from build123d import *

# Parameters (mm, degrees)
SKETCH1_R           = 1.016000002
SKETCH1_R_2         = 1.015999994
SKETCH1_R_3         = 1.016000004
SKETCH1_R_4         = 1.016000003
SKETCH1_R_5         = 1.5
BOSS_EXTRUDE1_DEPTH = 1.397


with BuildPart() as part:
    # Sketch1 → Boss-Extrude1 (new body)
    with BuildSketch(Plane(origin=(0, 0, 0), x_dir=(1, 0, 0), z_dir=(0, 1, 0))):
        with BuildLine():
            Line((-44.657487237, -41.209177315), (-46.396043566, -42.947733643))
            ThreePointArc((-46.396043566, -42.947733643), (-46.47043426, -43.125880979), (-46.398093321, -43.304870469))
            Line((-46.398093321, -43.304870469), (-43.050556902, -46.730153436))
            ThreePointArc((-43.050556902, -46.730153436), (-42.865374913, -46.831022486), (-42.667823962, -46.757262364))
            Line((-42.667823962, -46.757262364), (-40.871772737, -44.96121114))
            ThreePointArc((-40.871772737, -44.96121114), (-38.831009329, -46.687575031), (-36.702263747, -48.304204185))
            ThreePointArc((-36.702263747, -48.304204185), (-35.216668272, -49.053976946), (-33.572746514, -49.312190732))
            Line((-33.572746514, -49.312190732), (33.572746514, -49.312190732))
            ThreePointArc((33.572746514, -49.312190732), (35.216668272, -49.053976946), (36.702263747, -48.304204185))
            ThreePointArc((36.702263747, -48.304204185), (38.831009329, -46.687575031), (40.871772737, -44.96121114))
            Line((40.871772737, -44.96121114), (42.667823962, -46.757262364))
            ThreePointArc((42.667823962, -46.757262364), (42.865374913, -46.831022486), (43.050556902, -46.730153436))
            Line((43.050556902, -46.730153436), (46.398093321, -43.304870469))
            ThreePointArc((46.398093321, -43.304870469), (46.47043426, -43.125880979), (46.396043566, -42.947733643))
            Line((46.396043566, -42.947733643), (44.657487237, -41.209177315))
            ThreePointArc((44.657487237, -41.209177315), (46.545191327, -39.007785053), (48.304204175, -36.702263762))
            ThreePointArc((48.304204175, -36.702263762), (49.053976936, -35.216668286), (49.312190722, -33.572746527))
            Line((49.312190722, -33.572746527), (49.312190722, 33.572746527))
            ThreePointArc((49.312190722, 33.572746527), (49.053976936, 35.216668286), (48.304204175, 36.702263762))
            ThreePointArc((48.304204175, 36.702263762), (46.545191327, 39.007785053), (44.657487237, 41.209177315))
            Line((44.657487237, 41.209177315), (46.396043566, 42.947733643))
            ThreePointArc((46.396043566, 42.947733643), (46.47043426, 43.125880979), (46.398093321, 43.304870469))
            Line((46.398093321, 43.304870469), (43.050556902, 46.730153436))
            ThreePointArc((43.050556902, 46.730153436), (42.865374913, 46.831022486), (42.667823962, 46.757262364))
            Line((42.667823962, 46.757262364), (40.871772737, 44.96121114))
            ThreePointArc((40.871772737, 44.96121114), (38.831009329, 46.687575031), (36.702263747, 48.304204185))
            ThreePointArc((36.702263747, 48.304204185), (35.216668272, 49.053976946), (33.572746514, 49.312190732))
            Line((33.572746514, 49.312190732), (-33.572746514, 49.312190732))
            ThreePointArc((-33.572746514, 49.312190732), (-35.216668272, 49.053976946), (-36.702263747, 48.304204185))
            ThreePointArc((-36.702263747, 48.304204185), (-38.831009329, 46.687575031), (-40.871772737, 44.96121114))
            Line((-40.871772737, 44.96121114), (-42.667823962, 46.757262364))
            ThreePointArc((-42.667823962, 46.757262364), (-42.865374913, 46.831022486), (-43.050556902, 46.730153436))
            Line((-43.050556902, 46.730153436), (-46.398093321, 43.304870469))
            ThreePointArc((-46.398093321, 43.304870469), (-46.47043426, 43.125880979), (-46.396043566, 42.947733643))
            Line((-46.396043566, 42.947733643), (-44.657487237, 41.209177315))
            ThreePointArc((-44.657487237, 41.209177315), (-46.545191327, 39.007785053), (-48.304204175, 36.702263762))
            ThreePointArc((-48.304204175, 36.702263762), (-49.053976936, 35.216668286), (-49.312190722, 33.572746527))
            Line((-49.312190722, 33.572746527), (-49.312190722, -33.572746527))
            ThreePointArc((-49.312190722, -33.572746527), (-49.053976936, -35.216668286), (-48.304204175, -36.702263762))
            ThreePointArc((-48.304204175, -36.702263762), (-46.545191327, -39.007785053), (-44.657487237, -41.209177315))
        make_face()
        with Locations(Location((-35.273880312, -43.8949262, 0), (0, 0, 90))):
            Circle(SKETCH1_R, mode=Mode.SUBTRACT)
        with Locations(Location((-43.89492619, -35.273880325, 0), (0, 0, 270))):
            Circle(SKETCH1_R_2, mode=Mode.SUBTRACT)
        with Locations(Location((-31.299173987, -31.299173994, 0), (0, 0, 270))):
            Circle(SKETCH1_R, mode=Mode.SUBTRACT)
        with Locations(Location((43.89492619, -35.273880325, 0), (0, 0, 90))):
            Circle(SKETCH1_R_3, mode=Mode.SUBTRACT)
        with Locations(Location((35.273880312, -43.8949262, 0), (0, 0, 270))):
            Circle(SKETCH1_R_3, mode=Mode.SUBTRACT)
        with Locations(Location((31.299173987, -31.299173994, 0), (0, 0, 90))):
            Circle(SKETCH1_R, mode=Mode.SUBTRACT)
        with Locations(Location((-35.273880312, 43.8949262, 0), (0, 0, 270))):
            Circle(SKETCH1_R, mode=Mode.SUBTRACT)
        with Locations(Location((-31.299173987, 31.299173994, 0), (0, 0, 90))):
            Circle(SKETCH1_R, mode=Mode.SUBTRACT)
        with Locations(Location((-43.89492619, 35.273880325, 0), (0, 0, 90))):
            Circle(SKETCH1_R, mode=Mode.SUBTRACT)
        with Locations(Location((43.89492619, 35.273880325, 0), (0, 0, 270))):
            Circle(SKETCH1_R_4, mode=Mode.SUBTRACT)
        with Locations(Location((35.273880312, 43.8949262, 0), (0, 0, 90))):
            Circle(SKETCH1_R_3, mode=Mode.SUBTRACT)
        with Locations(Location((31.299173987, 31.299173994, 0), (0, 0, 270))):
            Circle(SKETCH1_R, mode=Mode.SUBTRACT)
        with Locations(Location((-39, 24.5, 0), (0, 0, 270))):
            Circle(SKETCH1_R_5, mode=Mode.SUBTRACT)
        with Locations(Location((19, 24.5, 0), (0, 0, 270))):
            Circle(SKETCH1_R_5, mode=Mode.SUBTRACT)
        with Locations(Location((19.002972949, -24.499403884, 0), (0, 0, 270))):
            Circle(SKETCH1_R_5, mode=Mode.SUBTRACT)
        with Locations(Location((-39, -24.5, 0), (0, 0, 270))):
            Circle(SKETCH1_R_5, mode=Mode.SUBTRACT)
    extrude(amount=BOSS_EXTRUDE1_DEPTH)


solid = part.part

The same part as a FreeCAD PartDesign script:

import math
import FreeCAD as App
import Part
import Sketcher

V = App.Vector
Q = App.Units.Quantity

doc = App.newDocument("Part")
body = doc.addObject("PartDesign::Body", "Body")

# Sketch on XZ plane
sketch1 = doc.addObject("Sketcher::SketchObject", "Sketch")
body.addObject(sketch1)
sketch1.AttachmentSupport = (doc.XZ_Plane, [""])
sketch1.MapMode = "FlatFace"
sketch1.addGeometry(Part.LineSegment(V(-44.657487, 41.209177, 0), V(-46.396044, 42.947734, 0)), False)
sketch1.addGeometry(Part.ArcOfCircle(Part.Circle(V(-46.216438, 43.127339, 0), V(0, 0, 1), 0.254), math.radians(135.657681), math.radians(225)), False)
sketch1.addGeometry(Part.LineSegment(V(-46.398093, 43.30487, 0), V(-43.050557, 46.730153, 0)), False)
sketch1.addGeometry(Part.ArcOfCircle(Part.Circle(V(-42.847429, 46.577657, 0), V(0, 0, 1), 0.254), math.radians(45), math.radians(143.102974)), False)
sketch1.addGeometry(Part.LineSegment(V(-42.667824, 46.757262, 0), V(-40.871773, 44.961211, 0)), False)
sketch1.addGeometry(Part.ArcOfCircle(Part.Circle(V(-7.05371, 7.05371, 0), V(0, 0, 1), 50.8), math.radians(125.706473), math.radians(131.73681)), False)
sketch1.addGeometry(Part.ArcOfCircle(Part.Circle(V(-33.572747, 43.950058, 0), V(0, 0, 1), 5.362133), math.radians(90), math.radians(125.706473)), False)
sketch1.addGeometry(Part.LineSegment(V(-33.572747, 49.312191, 0), V(33.572747, 49.312191, 0)), False)
sketch1.addGeometry(Part.ArcOfCircle(Part.Circle(V(33.572747, 43.950058, 0), V(0, 0, 1), 5.362133), math.radians(54.293527), math.radians(90)), False)
sketch1.addGeometry(Part.ArcOfCircle(Part.Circle(V(7.05371, 7.05371, 0), V(0, 0, 1), 50.8), math.radians(48.26319), math.radians(54.293527)), False)
sketch1.addGeometry(Part.LineSegment(V(40.871773, 44.961211, 0), V(42.667824, 46.757262, 0)), False)
sketch1.addGeometry(Part.ArcOfCircle(Part.Circle(V(42.847429, 46.577657, 0), V(0, 0, 1), 0.254), math.radians(36.897026), math.radians(135)), False)
sketch1.addGeometry(Part.LineSegment(V(43.050557, 46.730153, 0), V(46.398093, 43.30487, 0)), False)
sketch1.addGeometry(Part.ArcOfCircle(Part.Circle(V(46.216438, 43.127339, 0), V(0, 0, 1), 0.254), math.radians(-45), math.radians(44.342319)), False)
sketch1.addGeometry(Part.LineSegment(V(46.396044, 42.947734, 0), V(44.657487, 41.209177, 0)), False)
sketch1.addGeometry(Part.ArcOfCircle(Part.Circle(V(7.05371, 7.05371, 0), V(0, 0, 1), 50.8), math.radians(35.706473), math.radians(42.248832)), False)
sketch1.addGeometry(Part.ArcOfCircle(Part.Circle(V(43.950058, 33.572747, 0), V(0, 0, 1), 5.362133), math.radians(0), math.radians(35.706473)), False)
sketch1.addGeometry(Part.LineSegment(V(49.312191, 33.572747, 0), V(49.312191, -33.572747, 0)), False)
sketch1.addGeometry(Part.ArcOfCircle(Part.Circle(V(43.950058, -33.572747, 0), V(0, 0, 1), 5.362133), math.radians(-35.706473), math.radians(0)), False)
sketch1.addGeometry(Part.ArcOfCircle(Part.Circle(V(7.05371, -7.05371, 0), V(0, 0, 1), 50.8), math.radians(-42.248832), math.radians(-35.706473)), False)
sketch1.addGeometry(Part.LineSegment(V(44.657487, -41.209177, 0), V(46.396044, -42.947734, 0)), False)
sketch1.addGeometry(Part.ArcOfCircle(Part.Circle(V(46.216438, -43.127339, 0), V(0, 0, 1), 0.254), math.radians(-44.342319), math.radians(45)), False)
sketch1.addGeometry(Part.LineSegment(V(46.398093, -43.30487, 0), V(43.050557, -46.730153, 0)), False)
sketch1.addGeometry(Part.ArcOfCircle(Part.Circle(V(42.847429, -46.577657, 0), V(0, 0, 1), 0.254), math.radians(-135), math.radians(-36.897026)), False)
sketch1.addGeometry(Part.LineSegment(V(42.667824, -46.757262, 0), V(40.871773, -44.961211, 0)), False)
sketch1.addGeometry(Part.ArcOfCircle(Part.Circle(V(7.05371, -7.05371, 0), V(0, 0, 1), 50.8), math.radians(-54.293527), math.radians(-48.26319)), False)
sketch1.addGeometry(Part.ArcOfCircle(Part.Circle(V(33.572747, -43.950058, 0), V(0, 0, 1), 5.362133), math.radians(-90), math.radians(-54.293527)), False)
sketch1.addGeometry(Part.LineSegment(V(33.572747, -49.312191, 0), V(-33.572747, -49.312191, 0)), False)
sketch1.addGeometry(Part.ArcOfCircle(Part.Circle(V(-33.572747, -43.950058, 0), V(0, 0, 1), 5.362133), math.radians(-125.706473), math.radians(-90)), False)
sketch1.addGeometry(Part.ArcOfCircle(Part.Circle(V(-7.05371, -7.05371, 0), V(0, 0, 1), 50.8), math.radians(-131.73681), math.radians(-125.706473)), False)
sketch1.addGeometry(Part.LineSegment(V(-40.871773, -44.961211, 0), V(-42.667824, -46.757262, 0)), False)
sketch1.addGeometry(Part.ArcOfCircle(Part.Circle(V(-42.847429, -46.577657, 0), V(0, 0, 1), 0.254), math.radians(-143.102974), math.radians(-45)), False)
sketch1.addGeometry(Part.LineSegment(V(-43.050557, -46.730153, 0), V(-46.398093, -43.30487, 0)), False)
sketch1.addGeometry(Part.ArcOfCircle(Part.Circle(V(-46.216438, -43.127339, 0), V(0, 0, 1), 0.254), math.radians(135), math.radians(224.342319)), False)
sketch1.addGeometry(Part.LineSegment(V(-46.396044, -42.947734, 0), V(-44.657487, -41.209177, 0)), False)
sketch1.addGeometry(Part.ArcOfCircle(Part.Circle(V(-7.05371, -7.05371, 0), V(0, 0, 1), 50.8), math.radians(-144.293527), math.radians(-137.751168)), False)
sketch1.addGeometry(Part.ArcOfCircle(Part.Circle(V(-43.950058, -33.572747, 0), V(0, 0, 1), 5.362133), math.radians(180), math.radians(215.706473)), False)
sketch1.addGeometry(Part.LineSegment(V(-49.312191, -33.572747, 0), V(-49.312191, 33.572747, 0)), False)
sketch1.addGeometry(Part.ArcOfCircle(Part.Circle(V(-43.950058, 33.572747, 0), V(0, 0, 1), 5.362133), math.radians(144.293527), math.radians(180)), False)
sketch1.addGeometry(Part.ArcOfCircle(Part.Circle(V(-7.05371, 7.05371, 0), V(0, 0, 1), 50.8), math.radians(137.751168), math.radians(144.293527)), False)
sketch1.addGeometry(Part.Circle(V(-35.27388, 43.894926, 0), V(0, 0, 1), 1.016), False)
sketch1.addGeometry(Part.Circle(V(-43.894926, 35.27388, 0), V(0, 0, 1), 1.016), False)
sketch1.addGeometry(Part.Circle(V(-39, 24.5, 0), V(0, 0, 1), 1.5), False)
sketch1.addGeometry(Part.Circle(V(-31.299174, 31.299174, 0), V(0, 0, 1), 1.016), False)
sketch1.addGeometry(Part.Circle(V(19.002973, 24.499404, 0), V(0, 0, 1), 1.5), False)
sketch1.addGeometry(Part.Circle(V(35.27388, 43.894926, 0), V(0, 0, 1), 1.016), False)
sketch1.addGeometry(Part.Circle(V(43.894926, 35.27388, 0), V(0, 0, 1), 1.016), False)
sketch1.addGeometry(Part.Circle(V(31.299174, 31.299174, 0), V(0, 0, 1), 1.016), False)
sketch1.addGeometry(Part.Circle(V(-39, -24.5, 0), V(0, 0, 1), 1.5), False)
sketch1.addGeometry(Part.Circle(V(-31.299174, -31.299174, 0), V(0, 0, 1), 1.016), False)
sketch1.addGeometry(Part.Circle(V(-43.894926, -35.27388, 0), V(0, 0, 1), 1.016), False)
sketch1.addGeometry(Part.Circle(V(-35.27388, -43.894926, 0), V(0, 0, 1), 1.016), False)
sketch1.addGeometry(Part.Circle(V(19, -24.5, 0), V(0, 0, 1), 1.5), False)
sketch1.addGeometry(Part.Circle(V(31.299174, -31.299174, 0), V(0, 0, 1), 1.016), False)
sketch1.addGeometry(Part.Circle(V(43.894926, -35.27388, 0), V(0, 0, 1), 1.016), False)
sketch1.addGeometry(Part.Circle(V(35.27388, -43.894926, 0), V(0, 0, 1), 1.016), False)
sketch1.addConstraint(Sketcher.Constraint("Tangent", 0, 2, 1, 2))
sketch1.addConstraint(Sketcher.Constraint("Tangent", 1, 1, 2, 1))
sketch1.addConstraint(Sketcher.Constraint("Coincident", 2, 2, 3, 2))
sketch1.addConstraint(Sketcher.Constraint("Tangent", 3, 1, 4, 1))
sketch1.addConstraint(Sketcher.Constraint("Coincident", 4, 2, 5, 2))
sketch1.addConstraint(Sketcher.Constraint("Tangent", 5, 1, 6, 2))
sketch1.addConstraint(Sketcher.Constraint("Tangent", 6, 1, 7, 1))
sketch1.addConstraint(Sketcher.Constraint("Tangent", 7, 2, 8, 2))
sketch1.addConstraint(Sketcher.Constraint("Tangent", 8, 1, 9, 2))
sketch1.addConstraint(Sketcher.Constraint("Coincident", 9, 1, 10, 1))
sketch1.addConstraint(Sketcher.Constraint("Tangent", 10, 2, 11, 2))
sketch1.addConstraint(Sketcher.Constraint("Coincident", 11, 1, 12, 1))
sketch1.addConstraint(Sketcher.Constraint("Tangent", 12, 2, 13, 2))
sketch1.addConstraint(Sketcher.Constraint("Tangent", 13, 1, 14, 1))
sketch1.addConstraint(Sketcher.Constraint("Coincident", 14, 2, 15, 2))
sketch1.addConstraint(Sketcher.Constraint("Tangent", 15, 1, 16, 2))
sketch1.addConstraint(Sketcher.Constraint("Tangent", 16, 1, 17, 1))
sketch1.addConstraint(Sketcher.Constraint("Tangent", 17, 2, 18, 2))
sketch1.addConstraint(Sketcher.Constraint("Tangent", 18, 1, 19, 2))
sketch1.addConstraint(Sketcher.Constraint("Coincident", 19, 1, 20, 1))
sketch1.addConstraint(Sketcher.Constraint("Tangent", 20, 2, 21, 2))
sketch1.addConstraint(Sketcher.Constraint("Tangent", 21, 1, 22, 1))
sketch1.addConstraint(Sketcher.Constraint("Coincident", 22, 2, 23, 2))
sketch1.addConstraint(Sketcher.Constraint("Tangent", 23, 1, 24, 1))
sketch1.addConstraint(Sketcher.Constraint("Coincident", 24, 2, 25, 2))
sketch1.addConstraint(Sketcher.Constraint("Tangent", 25, 1, 26, 2))
sketch1.addConstraint(Sketcher.Constraint("Tangent", 26, 1, 27, 1))
sketch1.addConstraint(Sketcher.Constraint("Tangent", 27, 2, 28, 2))
sketch1.addConstraint(Sketcher.Constraint("Tangent", 28, 1, 29, 2))
sketch1.addConstraint(Sketcher.Constraint("Coincident", 29, 1, 30, 1))
sketch1.addConstraint(Sketcher.Constraint("Tangent", 30, 2, 31, 2))
sketch1.addConstraint(Sketcher.Constraint("Coincident", 31, 1, 32, 1))
sketch1.addConstraint(Sketcher.Constraint("Tangent", 32, 2, 33, 2))
sketch1.addConstraint(Sketcher.Constraint("Tangent", 33, 1, 34, 1))
sketch1.addConstraint(Sketcher.Constraint("Coincident", 34, 2, 35, 2))
sketch1.addConstraint(Sketcher.Constraint("Tangent", 35, 1, 36, 2))
sketch1.addConstraint(Sketcher.Constraint("Tangent", 36, 1, 37, 1))
sketch1.addConstraint(Sketcher.Constraint("Tangent", 37, 2, 38, 2))
sketch1.addConstraint(Sketcher.Constraint("Tangent", 38, 1, 39, 2))
sketch1.addConstraint(Sketcher.Constraint("Coincident", 39, 1, 0, 1))
sketch1.addConstraint(Sketcher.Constraint("Horizontal", 7))
sketch1.addConstraint(Sketcher.Constraint("Vertical", 17))
sketch1.addConstraint(Sketcher.Constraint("Horizontal", 27))
sketch1.addConstraint(Sketcher.Constraint("Vertical", 37))
sketch1.addConstraint(Sketcher.Constraint("Coincident", 15, 3, 9, 3))
sketch1.addConstraint(Sketcher.Constraint("Coincident", 25, 3, 19, 3))
sketch1.addConstraint(Sketcher.Constraint("Coincident", 35, 3, 29, 3))
sketch1.addConstraint(Sketcher.Constraint("Coincident", 39, 3, 5, 3))
sketch1.addConstraint(Sketcher.Constraint("Equal", 1, 3))
sketch1.addConstraint(Sketcher.Constraint("Equal", 6, 8))
sketch1.addConstraint(Sketcher.Constraint("Equal", 5, 9))
sketch1.addConstraint(Sketcher.Constraint("Equal", 3, 11))
sketch1.addConstraint(Sketcher.Constraint("Equal", 11, 13))
sketch1.addConstraint(Sketcher.Constraint("Equal", 9, 15))
sketch1.addConstraint(Sketcher.Constraint("Equal", 8, 16))
sketch1.addConstraint(Sketcher.Constraint("Equal", 16, 18))
sketch1.addConstraint(Sketcher.Constraint("Equal", 15, 19))
sketch1.addConstraint(Sketcher.Constraint("Equal", 13, 21))
sketch1.addConstraint(Sketcher.Constraint("Equal", 21, 23))
sketch1.addConstraint(Sketcher.Constraint("Equal", 19, 25))
sketch1.addConstraint(Sketcher.Constraint("Equal", 18, 26))
sketch1.addConstraint(Sketcher.Constraint("Equal", 26, 28))
sketch1.addConstraint(Sketcher.Constraint("Equal", 25, 29))
sketch1.addConstraint(Sketcher.Constraint("Equal", 23, 31))
sketch1.addConstraint(Sketcher.Constraint("Equal", 31, 33))
sketch1.addConstraint(Sketcher.Constraint("Equal", 29, 35))
sketch1.addConstraint(Sketcher.Constraint("Equal", 28, 36))
sketch1.addConstraint(Sketcher.Constraint("Equal", 36, 38))
sketch1.addConstraint(Sketcher.Constraint("Equal", 35, 39))
sketch1.addConstraint(Sketcher.Constraint("Equal", 40, 41))
sketch1.addConstraint(Sketcher.Constraint("Equal", 41, 43))
sketch1.addConstraint(Sketcher.Constraint("Equal", 42, 44))
sketch1.addConstraint(Sketcher.Constraint("Equal", 43, 45))
sketch1.addConstraint(Sketcher.Constraint("Equal", 45, 46))
sketch1.addConstraint(Sketcher.Constraint("Equal", 46, 47))
sketch1.addConstraint(Sketcher.Constraint("Equal", 44, 48))
sketch1.addConstraint(Sketcher.Constraint("Equal", 47, 49))
sketch1.addConstraint(Sketcher.Constraint("Equal", 49, 50))
sketch1.addConstraint(Sketcher.Constraint("Equal", 50, 51))
sketch1.addConstraint(Sketcher.Constraint("Equal", 48, 52))
sketch1.addConstraint(Sketcher.Constraint("Equal", 51, 53))
sketch1.addConstraint(Sketcher.Constraint("Equal", 53, 54))
sketch1.addConstraint(Sketcher.Constraint("Equal", 54, 55))
sketch1.addConstraint(Sketcher.Constraint("Symmetric", 5, 3, 19, 3, -1, 1))
sketch1.addConstraint(Sketcher.Constraint("Symmetric", 1, 3, 21, 3, -1, 1))
sketch1.addConstraint(Sketcher.Constraint("Symmetric", 3, 3, 23, 3, -1, 1))
sketch1.addConstraint(Sketcher.Constraint("Symmetric", 8, 3, 28, 3, -1, 1))
sketch1.addConstraint(Sketcher.Constraint("Symmetric", 11, 3, 31, 3, -1, 1))
sketch1.addConstraint(Sketcher.Constraint("Symmetric", 13, 3, 33, 3, -1, 1))
sketch1.addConstraint(Sketcher.Constraint("Symmetric", 16, 3, 36, 3, -1, 1))
sketch1.addConstraint(Sketcher.Constraint("Symmetric", 47, 3, 49, 3, -1, 1))
sketch1.addConstraint(Sketcher.Constraint("Symmetric", 46, 3, 50, 3, -1, 1))
sketch1.addConstraint(Sketcher.Constraint("Symmetric", 45, 3, 51, 3, -1, 1))
sketch1.addConstraint(Sketcher.Constraint("Symmetric", 43, 3, 53, 3, -1, 1))
sketch1.addConstraint(Sketcher.Constraint("Symmetric", 41, 3, 54, 3, -1, 1))
sketch1.addConstraint(Sketcher.Constraint("Symmetric", 40, 3, 55, 3, -1, 1))
sketch1.addConstraint(Sketcher.Constraint("Symmetric", 5, 3, 9, 3, -2))
sketch1.addConstraint(Sketcher.Constraint("Symmetric", 3, 3, 11, 3, -2))
sketch1.addConstraint(Sketcher.Constraint("Symmetric", 1, 3, 13, 3, -2))
sketch1.addConstraint(Sketcher.Constraint("Symmetric", 40, 3, 45, 3, -2))
sketch1.addConstraint(Sketcher.Constraint("Symmetric", 41, 3, 46, 3, -2))
sketch1.addConstraint(Sketcher.Constraint("Symmetric", 43, 3, 47, 3, -2))
sketch1.addConstraint(Sketcher.Constraint("Symmetric", 42, 3, 48, 3, -1))
sketch1.addConstraint(Sketcher.Constraint("Parallel", 0, 4))
sketch1.addConstraint(Sketcher.Constraint("Perpendicular", 4, 10))
sketch1.addConstraint(Sketcher.Constraint("Parallel", 10, 14))
sketch1.addConstraint(Sketcher.Constraint("Perpendicular", 14, 20))
sketch1.addConstraint(Sketcher.Constraint("Parallel", 2, 22))
sketch1.addConstraint(Sketcher.Constraint("Parallel", 20, 24))
sketch1.addConstraint(Sketcher.Constraint("Perpendicular", 24, 30))
sketch1.addConstraint(Sketcher.Constraint("Parallel", 12, 32))
sketch1.addConstraint(Sketcher.Constraint("Parallel", 30, 34))
sketch1.addConstraint(Sketcher.Constraint("Horizontal", 48, 3, 52, 3))
sketch1.addConstraint(Sketcher.Constraint("Horizontal", 4, 2, 9, 1))
sketch1.addConstraint(Sketcher.Constraint("Horizontal", 2, 2, 11, 1))
sketch1.addConstraint(Sketcher.Constraint("Equal", 27, 17))
sketch1.addConstraint(Sketcher.Constraint("Radius", 5, Q("2 in")))
sketch1.addConstraint(Sketcher.Constraint("Diameter", 40, Q("0.08 in")))
sketch1.addConstraint(Sketcher.Constraint("Radius", 1, Q("0.01 in")))
sketch1.addConstraint(Sketcher.Constraint("Distance", 4, Q("0.1 in")))
sketch1.addConstraint(Sketcher.Constraint("Diameter", 42, Q("3 mm")))
sketch1.addConstraint(Sketcher.Constraint("Radius", 6, Q("5.362133 mm")))
sketch1.addConstraint(Sketcher.Constraint("DistanceX", 42, 3, -1, 1, Q("39 mm")))
sketch1.addConstraint(Sketcher.Constraint("DistanceY", -1, 1, 42, 3, Q("24.5 mm")))
sketch1.addConstraint(Sketcher.Constraint("DistanceX", -1, 1, 52, 3, Q("19 mm")))
sketch1.addConstraint(Sketcher.Constraint("Distance", 0, Q("2.45869 mm")))
sketch1.addConstraint(Sketcher.Constraint("DistanceX", 7, 1, 7, 2, Q("67.145493 mm")))
sketch1.addConstraint(Sketcher.Constraint("DistanceX", 1, 3, -1, 1, Q("46.216438 mm")))
sketch1.addConstraint(Sketcher.Constraint("DistanceY", -1, 1, 1, 3, Q("43.127339 mm")))
sketch1.addConstraint(Sketcher.Constraint("DistanceX", 3, 3, -1, 1, Q("42.847429 mm")))
sketch1.addConstraint(Sketcher.Constraint("DistanceX", 5, 3, -1, 1, Q("7.05371 mm")))
sketch1.addConstraint(Sketcher.Constraint("DistanceX", 40, 3, -1, 1, Q("35.27388 mm")))
sketch1.addConstraint(Sketcher.Constraint("DistanceY", -1, 1, 41, 3, Q("35.27388 mm")))
sketch1.addConstraint(Sketcher.Constraint("Distance", 2, Q("4.789422 mm")))
sketch1.addConstraint(Sketcher.Constraint("DistanceY", -1, 1, 40, 3, Q("43.894926 mm")))
sketch1.addConstraint(Sketcher.Constraint("DistanceX", 41, 3, -1, 1, Q("43.894926 mm")))
sketch1.addConstraint(Sketcher.Constraint("DistanceX", 43, 3, -1, 1, Q("31.299174 mm")))
sketch1.addConstraint(Sketcher.Constraint("DistanceY", -1, 1, 43, 3, Q("31.299174 mm")))
sketch1.addConstraint(Sketcher.Constraint("DistanceX", -1, 1, 44, 3, Q("19.002973 mm")))
sketch1.addConstraint(Sketcher.Constraint("DistanceY", -1, 1, 44, 3, Q("24.499404 mm")))
pad1 = doc.addObject("PartDesign::Pad", "Pad")
body.addObject(pad1)
pad1.Profile = sketch1
pad1.Length = Q("0.055 in")
pad1.Reversed = True

doc.recompute()
